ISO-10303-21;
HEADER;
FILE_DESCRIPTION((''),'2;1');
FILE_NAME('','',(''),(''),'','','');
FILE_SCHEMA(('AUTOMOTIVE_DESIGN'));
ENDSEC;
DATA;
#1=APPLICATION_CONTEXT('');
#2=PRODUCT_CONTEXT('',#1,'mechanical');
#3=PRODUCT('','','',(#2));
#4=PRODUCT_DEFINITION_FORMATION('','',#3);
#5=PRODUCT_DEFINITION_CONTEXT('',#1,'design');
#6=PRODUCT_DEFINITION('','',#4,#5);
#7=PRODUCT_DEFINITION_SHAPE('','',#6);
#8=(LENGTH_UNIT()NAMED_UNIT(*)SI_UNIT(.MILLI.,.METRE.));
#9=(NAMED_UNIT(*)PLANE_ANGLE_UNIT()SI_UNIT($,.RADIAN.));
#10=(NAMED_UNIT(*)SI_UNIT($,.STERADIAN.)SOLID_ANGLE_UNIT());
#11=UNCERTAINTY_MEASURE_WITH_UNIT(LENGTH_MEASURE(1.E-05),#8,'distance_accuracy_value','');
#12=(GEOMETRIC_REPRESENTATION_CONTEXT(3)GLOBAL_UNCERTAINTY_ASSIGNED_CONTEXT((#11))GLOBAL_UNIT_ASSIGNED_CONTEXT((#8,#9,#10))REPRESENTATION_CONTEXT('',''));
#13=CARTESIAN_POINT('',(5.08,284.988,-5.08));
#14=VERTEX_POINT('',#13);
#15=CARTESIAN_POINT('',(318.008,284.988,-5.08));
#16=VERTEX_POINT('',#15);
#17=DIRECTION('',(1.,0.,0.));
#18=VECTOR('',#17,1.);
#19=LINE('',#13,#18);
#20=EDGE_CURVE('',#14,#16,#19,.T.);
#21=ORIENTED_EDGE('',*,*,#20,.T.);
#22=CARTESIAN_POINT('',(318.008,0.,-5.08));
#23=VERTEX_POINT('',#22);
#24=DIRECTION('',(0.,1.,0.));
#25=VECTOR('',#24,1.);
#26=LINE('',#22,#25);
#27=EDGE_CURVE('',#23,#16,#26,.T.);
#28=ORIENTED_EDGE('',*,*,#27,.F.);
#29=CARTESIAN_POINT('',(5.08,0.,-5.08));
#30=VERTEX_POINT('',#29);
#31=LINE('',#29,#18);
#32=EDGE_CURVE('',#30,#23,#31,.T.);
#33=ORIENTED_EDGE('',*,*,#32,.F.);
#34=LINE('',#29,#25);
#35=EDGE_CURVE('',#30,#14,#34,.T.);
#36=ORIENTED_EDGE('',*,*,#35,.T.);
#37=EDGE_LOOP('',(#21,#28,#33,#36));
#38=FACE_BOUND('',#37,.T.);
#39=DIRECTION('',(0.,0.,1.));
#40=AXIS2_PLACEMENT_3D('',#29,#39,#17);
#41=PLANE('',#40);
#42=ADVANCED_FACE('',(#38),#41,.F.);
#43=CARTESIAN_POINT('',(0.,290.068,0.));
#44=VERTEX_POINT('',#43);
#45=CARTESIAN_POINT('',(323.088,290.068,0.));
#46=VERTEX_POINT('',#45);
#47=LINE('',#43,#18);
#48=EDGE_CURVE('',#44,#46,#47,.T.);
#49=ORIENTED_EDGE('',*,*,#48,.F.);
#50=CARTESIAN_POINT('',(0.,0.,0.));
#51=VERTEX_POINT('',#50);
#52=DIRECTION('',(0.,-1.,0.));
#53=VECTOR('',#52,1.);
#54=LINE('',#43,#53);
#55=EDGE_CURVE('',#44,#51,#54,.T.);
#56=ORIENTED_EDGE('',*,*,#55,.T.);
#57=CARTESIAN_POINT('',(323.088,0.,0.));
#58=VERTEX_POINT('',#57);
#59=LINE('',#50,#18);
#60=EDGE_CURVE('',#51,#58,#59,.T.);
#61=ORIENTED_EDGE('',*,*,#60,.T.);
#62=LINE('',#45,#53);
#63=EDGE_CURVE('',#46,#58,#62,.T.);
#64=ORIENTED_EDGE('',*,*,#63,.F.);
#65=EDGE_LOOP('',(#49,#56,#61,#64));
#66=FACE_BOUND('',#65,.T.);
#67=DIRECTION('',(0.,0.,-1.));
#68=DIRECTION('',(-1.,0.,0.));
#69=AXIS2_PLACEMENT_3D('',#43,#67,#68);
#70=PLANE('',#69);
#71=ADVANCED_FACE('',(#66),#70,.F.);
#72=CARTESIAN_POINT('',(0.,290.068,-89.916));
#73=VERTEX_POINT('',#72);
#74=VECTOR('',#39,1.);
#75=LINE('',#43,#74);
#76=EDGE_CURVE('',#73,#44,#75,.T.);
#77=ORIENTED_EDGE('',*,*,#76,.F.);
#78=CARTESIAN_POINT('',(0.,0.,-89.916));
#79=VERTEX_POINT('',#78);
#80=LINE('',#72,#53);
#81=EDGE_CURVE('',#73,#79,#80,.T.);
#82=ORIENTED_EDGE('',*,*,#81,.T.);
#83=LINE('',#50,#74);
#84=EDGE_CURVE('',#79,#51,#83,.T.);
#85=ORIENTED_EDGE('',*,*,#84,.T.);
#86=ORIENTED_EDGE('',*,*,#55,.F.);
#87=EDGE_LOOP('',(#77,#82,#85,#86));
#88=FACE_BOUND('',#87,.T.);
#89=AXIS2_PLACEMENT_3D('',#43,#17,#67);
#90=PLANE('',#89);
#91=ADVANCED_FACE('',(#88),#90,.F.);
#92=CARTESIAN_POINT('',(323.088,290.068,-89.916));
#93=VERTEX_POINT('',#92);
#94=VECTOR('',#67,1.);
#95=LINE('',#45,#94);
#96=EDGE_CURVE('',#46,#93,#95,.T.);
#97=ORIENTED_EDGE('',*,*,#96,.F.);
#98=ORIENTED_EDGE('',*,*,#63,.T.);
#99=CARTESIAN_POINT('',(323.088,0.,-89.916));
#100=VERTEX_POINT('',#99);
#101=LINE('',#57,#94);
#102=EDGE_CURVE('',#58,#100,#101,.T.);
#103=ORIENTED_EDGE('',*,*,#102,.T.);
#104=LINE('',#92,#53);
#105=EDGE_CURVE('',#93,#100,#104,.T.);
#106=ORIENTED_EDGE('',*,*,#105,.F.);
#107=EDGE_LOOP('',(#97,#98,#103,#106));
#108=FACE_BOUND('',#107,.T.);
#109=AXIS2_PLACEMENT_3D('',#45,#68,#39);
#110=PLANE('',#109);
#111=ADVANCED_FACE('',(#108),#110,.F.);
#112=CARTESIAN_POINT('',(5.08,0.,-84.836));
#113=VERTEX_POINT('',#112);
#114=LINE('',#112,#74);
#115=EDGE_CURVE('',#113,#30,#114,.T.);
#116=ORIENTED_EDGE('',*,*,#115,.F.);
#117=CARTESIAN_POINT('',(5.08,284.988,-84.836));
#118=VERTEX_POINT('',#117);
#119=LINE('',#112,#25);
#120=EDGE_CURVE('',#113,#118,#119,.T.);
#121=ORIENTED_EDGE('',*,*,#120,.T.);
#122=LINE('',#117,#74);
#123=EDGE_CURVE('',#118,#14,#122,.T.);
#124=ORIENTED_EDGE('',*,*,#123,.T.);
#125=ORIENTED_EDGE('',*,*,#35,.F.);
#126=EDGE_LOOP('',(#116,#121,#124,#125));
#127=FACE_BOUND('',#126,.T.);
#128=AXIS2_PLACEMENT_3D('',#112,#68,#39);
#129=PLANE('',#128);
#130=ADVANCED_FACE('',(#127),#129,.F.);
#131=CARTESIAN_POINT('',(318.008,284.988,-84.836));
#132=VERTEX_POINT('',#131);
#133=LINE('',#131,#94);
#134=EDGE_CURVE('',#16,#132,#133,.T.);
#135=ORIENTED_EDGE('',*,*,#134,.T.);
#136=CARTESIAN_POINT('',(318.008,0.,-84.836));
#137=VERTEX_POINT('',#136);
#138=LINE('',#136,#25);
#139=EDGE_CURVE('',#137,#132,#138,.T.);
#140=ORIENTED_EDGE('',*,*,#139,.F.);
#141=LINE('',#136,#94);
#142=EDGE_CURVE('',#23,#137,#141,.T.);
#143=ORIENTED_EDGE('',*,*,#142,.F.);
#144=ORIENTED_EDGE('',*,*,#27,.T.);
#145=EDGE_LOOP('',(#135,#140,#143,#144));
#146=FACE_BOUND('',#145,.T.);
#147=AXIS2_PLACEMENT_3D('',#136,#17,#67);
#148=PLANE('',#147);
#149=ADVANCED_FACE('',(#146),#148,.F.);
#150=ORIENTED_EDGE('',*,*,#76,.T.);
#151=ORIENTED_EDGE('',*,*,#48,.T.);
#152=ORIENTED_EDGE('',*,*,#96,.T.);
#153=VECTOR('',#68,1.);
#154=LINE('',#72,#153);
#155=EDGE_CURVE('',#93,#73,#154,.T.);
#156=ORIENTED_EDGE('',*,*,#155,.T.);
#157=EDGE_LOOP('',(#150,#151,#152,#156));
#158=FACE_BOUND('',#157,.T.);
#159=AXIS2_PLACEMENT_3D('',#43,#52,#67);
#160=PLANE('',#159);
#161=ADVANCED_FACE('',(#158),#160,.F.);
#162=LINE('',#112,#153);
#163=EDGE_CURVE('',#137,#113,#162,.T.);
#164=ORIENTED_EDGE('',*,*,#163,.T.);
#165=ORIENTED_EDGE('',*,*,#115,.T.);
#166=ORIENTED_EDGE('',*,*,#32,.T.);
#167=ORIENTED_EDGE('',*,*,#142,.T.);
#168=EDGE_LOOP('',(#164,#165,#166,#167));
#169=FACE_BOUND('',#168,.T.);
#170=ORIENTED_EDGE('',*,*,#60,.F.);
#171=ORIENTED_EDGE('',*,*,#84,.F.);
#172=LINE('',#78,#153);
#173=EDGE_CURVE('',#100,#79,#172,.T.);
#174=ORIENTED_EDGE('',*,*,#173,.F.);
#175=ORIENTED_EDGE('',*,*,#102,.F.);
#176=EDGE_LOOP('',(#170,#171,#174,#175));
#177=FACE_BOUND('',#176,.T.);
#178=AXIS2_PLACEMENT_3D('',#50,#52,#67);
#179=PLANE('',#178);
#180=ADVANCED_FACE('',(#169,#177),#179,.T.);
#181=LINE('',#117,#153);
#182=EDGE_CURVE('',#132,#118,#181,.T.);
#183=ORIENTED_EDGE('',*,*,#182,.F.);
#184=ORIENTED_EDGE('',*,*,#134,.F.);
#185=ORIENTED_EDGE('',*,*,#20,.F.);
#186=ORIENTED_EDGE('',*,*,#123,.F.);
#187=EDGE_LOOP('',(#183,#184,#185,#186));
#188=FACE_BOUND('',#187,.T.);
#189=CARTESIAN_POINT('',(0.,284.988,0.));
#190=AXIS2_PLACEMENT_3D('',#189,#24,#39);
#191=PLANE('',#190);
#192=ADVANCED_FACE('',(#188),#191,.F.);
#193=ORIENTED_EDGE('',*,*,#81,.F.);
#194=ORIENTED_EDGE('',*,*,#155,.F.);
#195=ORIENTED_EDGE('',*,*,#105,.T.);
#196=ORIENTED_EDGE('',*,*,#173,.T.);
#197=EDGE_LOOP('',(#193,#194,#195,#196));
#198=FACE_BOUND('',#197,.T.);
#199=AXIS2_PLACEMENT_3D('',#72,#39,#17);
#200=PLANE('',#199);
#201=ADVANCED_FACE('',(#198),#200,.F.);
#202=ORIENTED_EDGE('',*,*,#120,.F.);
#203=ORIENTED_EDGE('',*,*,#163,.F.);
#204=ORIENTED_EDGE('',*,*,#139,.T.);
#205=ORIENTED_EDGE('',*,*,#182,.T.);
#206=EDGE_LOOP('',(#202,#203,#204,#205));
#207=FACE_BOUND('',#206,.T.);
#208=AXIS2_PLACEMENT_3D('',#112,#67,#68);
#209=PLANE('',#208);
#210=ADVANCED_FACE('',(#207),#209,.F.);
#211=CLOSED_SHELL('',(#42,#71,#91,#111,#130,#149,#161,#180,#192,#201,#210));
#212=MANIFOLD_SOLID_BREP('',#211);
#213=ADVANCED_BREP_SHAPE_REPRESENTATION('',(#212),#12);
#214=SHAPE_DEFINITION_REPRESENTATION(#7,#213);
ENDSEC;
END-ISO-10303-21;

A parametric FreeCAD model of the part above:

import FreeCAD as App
import Part
import Sketcher
Q = App.Units.Quantity


def add_polygon(sketch, points):
    """Adds a closed chain of lines whose ends are joined by coincident constraints."""
    first, n = sketch.GeometryCount, len(points)
    for a, b in zip(points, points[1:] + points[:1]):
        sketch.addGeometry(Part.LineSegment(App.Vector(*a, 0), App.Vector(*b, 0)), False)
    for i in range(n):
        sketch.addConstraint(Sketcher.Constraint("Coincident", first + i, 2, first + (i + 1) % n, 1))

doc = App.newDocument("Part")
body = doc.addObject("PartDesign::Body", "Body")

# Sketch on XZ plane
sketch1 = body.newObject("Sketcher::SketchObject", "Sketch")
sketch1.AttachmentSupport = (doc.getObject("XZ_Plane"), [""])
sketch1.MapMode = "FlatFace"
add_polygon(sketch1, [(0, -90), (0, 0), (323, 0), (323, -90)])  # lines 0-3
sketch1.addConstraint(Sketcher.Constraint("Vertical", 0))
sketch1.addConstraint(Sketcher.Constraint("Horizontal", 1))
sketch1.addConstraint(Sketcher.Constraint("Vertical", 2))
sketch1.addConstraint(Sketcher.Constraint("Horizontal", 3))
sketch1.addConstraint(Sketcher.Constraint("Coincident", 0, 2, -1, 1))
sketch1.addConstraint(Sketcher.Constraint("DistanceX", 1, 1, 1, 2, Q("12.72 in")))
sketch1.addConstraint(Sketcher.Constraint("DistanceY", 0, 1, 0, 2, Q("3.54 in")))
pad1 = body.newObject("PartDesign::Pad", "Pad")
pad1.Profile = sketch1
pad1.Length = Q("11.42 in")
pad1.Reversed = True

# Sketch on XZ plane
sketch2 = body.newObject("Sketcher::SketchObject", "Sketch001")
sketch2.AttachmentSupport = (doc.getObject("XZ_Plane"), [""])
sketch2.MapMode = "FlatFace"
sketch2.AttachmentOffset = App.Placement(App.Vector(0, 0, -11.22 * 25.4), App.Rotation())
add_polygon(sketch2, [(5, -85), (5, -5), (318, -5), (318, -85)])  # lines 0-3
sketch2.addConstraint(Sketcher.Constraint("Vertical", 0))
sketch2.addConstraint(Sketcher.Constraint("Horizontal", 1))
sketch2.addConstraint(Sketcher.Constraint("Vertical", 2))
sketch2.addConstraint(Sketcher.Constraint("Horizontal", 3))
sketch2.addConstraint(Sketcher.Constraint("DistanceX", 1, 1, 1, 2, Q("12.32 in")))
sketch2.addConstraint(Sketcher.Constraint("DistanceY", 0, 1, 0, 2, Q("3.14 in")))
sketch2.addConstraint(Sketcher.Constraint("DistanceX", -1, 1, 0, 2, Q("0.2 in")))
sketch2.addConstraint(Sketcher.Constraint("DistanceY", 0, 2, -1, 1, Q("0.2 in")))
pocket1 = body.newObject("PartDesign::Pocket", "Pocket")
pocket1.Profile = sketch2
pocket1.Type = "ThroughAll"
pocket1.Reversed = True

doc.recompute()
